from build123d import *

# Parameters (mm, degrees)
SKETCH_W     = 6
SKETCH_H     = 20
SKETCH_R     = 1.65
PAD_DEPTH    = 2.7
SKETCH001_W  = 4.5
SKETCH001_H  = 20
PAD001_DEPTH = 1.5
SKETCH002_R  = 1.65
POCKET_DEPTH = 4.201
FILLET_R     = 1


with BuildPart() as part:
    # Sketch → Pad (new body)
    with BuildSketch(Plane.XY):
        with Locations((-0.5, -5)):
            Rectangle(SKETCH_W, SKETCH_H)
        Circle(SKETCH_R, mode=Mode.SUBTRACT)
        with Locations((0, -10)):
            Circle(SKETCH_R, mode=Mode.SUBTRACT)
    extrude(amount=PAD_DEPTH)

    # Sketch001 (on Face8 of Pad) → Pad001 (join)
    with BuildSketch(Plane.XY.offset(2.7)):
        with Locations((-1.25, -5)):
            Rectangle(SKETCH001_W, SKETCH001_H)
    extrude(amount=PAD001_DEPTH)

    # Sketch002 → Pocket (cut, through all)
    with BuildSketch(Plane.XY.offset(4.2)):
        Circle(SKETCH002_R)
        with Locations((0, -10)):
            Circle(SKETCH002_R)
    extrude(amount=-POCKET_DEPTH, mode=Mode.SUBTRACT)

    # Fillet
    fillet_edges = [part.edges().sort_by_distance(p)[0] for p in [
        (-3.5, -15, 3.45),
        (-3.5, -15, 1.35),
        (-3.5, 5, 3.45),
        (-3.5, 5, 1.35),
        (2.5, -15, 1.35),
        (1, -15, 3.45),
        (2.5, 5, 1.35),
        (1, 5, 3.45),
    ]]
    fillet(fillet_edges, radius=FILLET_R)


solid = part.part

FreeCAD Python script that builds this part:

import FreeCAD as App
import Part
import Sketcher

V = App.Vector


def edges_at(feature, points):
    """Names of the edges that pass closest to the given points."""
    edges = feature.Shape.Edges
    near = lambda p: min(range(len(edges)), key=lambda i: edges[i].distToShape(Part.Vertex(*p))[0])
    return sorted({f"Edge{near(p) + 1}" for p in points})

doc = App.newDocument("Part")
body = doc.addObject("PartDesign::Body", "Body")

sketch1 = body.newObject("Sketcher::SketchObject", "Sketch")
sketch1.AttachmentSupport = (doc.getObject("XY_Plane"), [""])
sketch1.MapMode = "FlatFace"
sketch1.addGeometry([
    Part.LineSegment(V(-3.5, 5, 0), V(-3.5, -15, 0)),
    Part.LineSegment(V(-3.5, -15, 0), V(2.5, -15, 0)),
    Part.LineSegment(V(2.5, -15, 0), V(2.5, 5, 0)),
    Part.LineSegment(V(2.5, 5, 0), V(-3.5, 5, 0)),
    Part.Circle(V(0, -10, 0), V(0, 0, 1), 1.6),
    Part.Circle(V(0, 0, 0), V(0, 0, 1), 1.6),
], False)
sketch1.addConstraint([
    Sketcher.Constraint("Coincident", 0, 2, 1, 1),
    Sketcher.Constraint("Coincident", 1, 2, 2, 1),
    Sketcher.Constraint("Coincident", 2, 2, 3, 1),
    Sketcher.Constraint("Coincident", 3, 2, 0, 1),
    Sketcher.Constraint("Vertical", 0),
    Sketcher.Constraint("Horizontal", 1),
    Sketcher.Constraint("Vertical", 2),
    Sketcher.Constraint("Horizontal", 3),
    Sketcher.Constraint("Coincident", 5, 3, -1, 1),
    Sketcher.Constraint("Equal", 4, 5),
    Sketcher.Constraint("PointOnObject", 4, 3, -2),
    Sketcher.Constraint("Diameter", 4, 3.3),
    Sketcher.Constraint("DistanceX", 1, 1, 1, 2, 6.0),
    Sketcher.Constraint("DistanceY", 0, 2, 0, 1, 20.0),
    Sketcher.Constraint("DistanceY", 4, 3, -1, 1, 10.0),
    Sketcher.Constraint("DistanceY", 0, 2, -1, 1, 15.0),
    Sketcher.Constraint("DistanceX", 0, 2, -1, 1, 3.5),
])
pad1 = body.newObject("PartDesign::Pad", "Pad")
pad1.Profile = sketch1
pad1.Length = 2.7

sketch2 = body.newObject("Sketcher::SketchObject", "Sketch001")
sketch2.AttachmentSupport = (doc.getObject("XY_Plane"), [""])
sketch2.MapMode = "FlatFace"
sketch2.AttachmentOffset = App.Placement(V(0, 0, 2.7), App.Rotation())
sketch2.addGeometry([
    Part.LineSegment(V(-3.5, 5, 0), V(-3.5, -15, 0)),
    Part.LineSegment(V(-3.5, -15, 0), V(1, -15, 0)),
    Part.LineSegment(V(1, -15, 0), V(1, 5, 0)),
    Part.LineSegment(V(1, 5, 0), V(-3.5, 5, 0)),
], False)
sketch2.addConstraint([
    Sketcher.Constraint("Coincident", 0, 2, 1, 1),
    Sketcher.Constraint("Coincident", 1, 2, 2, 1),
    Sketcher.Constraint("Coincident", 2, 2, 3, 1),
    Sketcher.Constraint("Coincident", 3, 2, 0, 1),
    Sketcher.Constraint("Vertical", 0),
    Sketcher.Constraint("Horizontal", 1),
    Sketcher.Constraint("Vertical", 2),
    Sketcher.Constraint("Horizontal", 3),
    Sketcher.Constraint("DistanceY", 0, 2, 0, 1, 20.0),
    Sketcher.Constraint("DistanceX", 1, 1, 1, 2, 4.5),
    Sketcher.Constraint("DistanceY", 0, 2, -1, 1, 15.0),
    Sketcher.Constraint("DistanceX", -1, 1, 1, 2, 1.0),
])
pad2 = body.newObject("PartDesign::Pad", "Pad001")
pad2.Profile = sketch2
pad2.Length = 1.5

sketch3 = body.newObject("Sketcher::SketchObject", "Sketch002")
sketch3.AttachmentSupport = (doc.getObject("XY_Plane"), [""])
sketch3.MapMode = "FlatFace"
sketch3.AttachmentOffset = App.Placement(V(0, 0, 4.2), App.Rotation())
sketch3.addGeometry([
    Part.Circle(V(0, 0, 0), V(0, 0, 1), 1.6),
    Part.Circle(V(0, -10, 0), V(0, 0, 1), 1.6),
], False)
sketch3.addConstraint([
    Sketcher.Constraint("Coincident", 0, 3, -1, 1),
    Sketcher.Constraint("Equal", 0, 1),
    Sketcher.Constraint("PointOnObject", 1, 3, -2),
    Sketcher.Constraint("Diameter", 0, 3.3),
    Sketcher.Constraint("DistanceY", 1, 3, -1, 1, 10.0),
])
pocket1 = body.newObject("PartDesign::Pocket", "Pocket")
pocket1.Profile = sketch3
pocket1.Type = "ThroughAll"
doc.recompute()

fillet = body.newObject("PartDesign::Fillet", "Fillet")
fillet.Base = (pocket1, edges_at(pocket1, [
    (-3.5, -15, 2.1),
    (-3.5, -15, 2.1),
    (-3.5, 5, 2.1),
    (-3.5, 5, 2.1),
    (2.5, -15, 1.35),
    (1, -15, 3.45),
    (2.5, 5, 1.35),
    (1, 5, 3.45),
]))
fillet.Radius = 1

doc.recompute()
